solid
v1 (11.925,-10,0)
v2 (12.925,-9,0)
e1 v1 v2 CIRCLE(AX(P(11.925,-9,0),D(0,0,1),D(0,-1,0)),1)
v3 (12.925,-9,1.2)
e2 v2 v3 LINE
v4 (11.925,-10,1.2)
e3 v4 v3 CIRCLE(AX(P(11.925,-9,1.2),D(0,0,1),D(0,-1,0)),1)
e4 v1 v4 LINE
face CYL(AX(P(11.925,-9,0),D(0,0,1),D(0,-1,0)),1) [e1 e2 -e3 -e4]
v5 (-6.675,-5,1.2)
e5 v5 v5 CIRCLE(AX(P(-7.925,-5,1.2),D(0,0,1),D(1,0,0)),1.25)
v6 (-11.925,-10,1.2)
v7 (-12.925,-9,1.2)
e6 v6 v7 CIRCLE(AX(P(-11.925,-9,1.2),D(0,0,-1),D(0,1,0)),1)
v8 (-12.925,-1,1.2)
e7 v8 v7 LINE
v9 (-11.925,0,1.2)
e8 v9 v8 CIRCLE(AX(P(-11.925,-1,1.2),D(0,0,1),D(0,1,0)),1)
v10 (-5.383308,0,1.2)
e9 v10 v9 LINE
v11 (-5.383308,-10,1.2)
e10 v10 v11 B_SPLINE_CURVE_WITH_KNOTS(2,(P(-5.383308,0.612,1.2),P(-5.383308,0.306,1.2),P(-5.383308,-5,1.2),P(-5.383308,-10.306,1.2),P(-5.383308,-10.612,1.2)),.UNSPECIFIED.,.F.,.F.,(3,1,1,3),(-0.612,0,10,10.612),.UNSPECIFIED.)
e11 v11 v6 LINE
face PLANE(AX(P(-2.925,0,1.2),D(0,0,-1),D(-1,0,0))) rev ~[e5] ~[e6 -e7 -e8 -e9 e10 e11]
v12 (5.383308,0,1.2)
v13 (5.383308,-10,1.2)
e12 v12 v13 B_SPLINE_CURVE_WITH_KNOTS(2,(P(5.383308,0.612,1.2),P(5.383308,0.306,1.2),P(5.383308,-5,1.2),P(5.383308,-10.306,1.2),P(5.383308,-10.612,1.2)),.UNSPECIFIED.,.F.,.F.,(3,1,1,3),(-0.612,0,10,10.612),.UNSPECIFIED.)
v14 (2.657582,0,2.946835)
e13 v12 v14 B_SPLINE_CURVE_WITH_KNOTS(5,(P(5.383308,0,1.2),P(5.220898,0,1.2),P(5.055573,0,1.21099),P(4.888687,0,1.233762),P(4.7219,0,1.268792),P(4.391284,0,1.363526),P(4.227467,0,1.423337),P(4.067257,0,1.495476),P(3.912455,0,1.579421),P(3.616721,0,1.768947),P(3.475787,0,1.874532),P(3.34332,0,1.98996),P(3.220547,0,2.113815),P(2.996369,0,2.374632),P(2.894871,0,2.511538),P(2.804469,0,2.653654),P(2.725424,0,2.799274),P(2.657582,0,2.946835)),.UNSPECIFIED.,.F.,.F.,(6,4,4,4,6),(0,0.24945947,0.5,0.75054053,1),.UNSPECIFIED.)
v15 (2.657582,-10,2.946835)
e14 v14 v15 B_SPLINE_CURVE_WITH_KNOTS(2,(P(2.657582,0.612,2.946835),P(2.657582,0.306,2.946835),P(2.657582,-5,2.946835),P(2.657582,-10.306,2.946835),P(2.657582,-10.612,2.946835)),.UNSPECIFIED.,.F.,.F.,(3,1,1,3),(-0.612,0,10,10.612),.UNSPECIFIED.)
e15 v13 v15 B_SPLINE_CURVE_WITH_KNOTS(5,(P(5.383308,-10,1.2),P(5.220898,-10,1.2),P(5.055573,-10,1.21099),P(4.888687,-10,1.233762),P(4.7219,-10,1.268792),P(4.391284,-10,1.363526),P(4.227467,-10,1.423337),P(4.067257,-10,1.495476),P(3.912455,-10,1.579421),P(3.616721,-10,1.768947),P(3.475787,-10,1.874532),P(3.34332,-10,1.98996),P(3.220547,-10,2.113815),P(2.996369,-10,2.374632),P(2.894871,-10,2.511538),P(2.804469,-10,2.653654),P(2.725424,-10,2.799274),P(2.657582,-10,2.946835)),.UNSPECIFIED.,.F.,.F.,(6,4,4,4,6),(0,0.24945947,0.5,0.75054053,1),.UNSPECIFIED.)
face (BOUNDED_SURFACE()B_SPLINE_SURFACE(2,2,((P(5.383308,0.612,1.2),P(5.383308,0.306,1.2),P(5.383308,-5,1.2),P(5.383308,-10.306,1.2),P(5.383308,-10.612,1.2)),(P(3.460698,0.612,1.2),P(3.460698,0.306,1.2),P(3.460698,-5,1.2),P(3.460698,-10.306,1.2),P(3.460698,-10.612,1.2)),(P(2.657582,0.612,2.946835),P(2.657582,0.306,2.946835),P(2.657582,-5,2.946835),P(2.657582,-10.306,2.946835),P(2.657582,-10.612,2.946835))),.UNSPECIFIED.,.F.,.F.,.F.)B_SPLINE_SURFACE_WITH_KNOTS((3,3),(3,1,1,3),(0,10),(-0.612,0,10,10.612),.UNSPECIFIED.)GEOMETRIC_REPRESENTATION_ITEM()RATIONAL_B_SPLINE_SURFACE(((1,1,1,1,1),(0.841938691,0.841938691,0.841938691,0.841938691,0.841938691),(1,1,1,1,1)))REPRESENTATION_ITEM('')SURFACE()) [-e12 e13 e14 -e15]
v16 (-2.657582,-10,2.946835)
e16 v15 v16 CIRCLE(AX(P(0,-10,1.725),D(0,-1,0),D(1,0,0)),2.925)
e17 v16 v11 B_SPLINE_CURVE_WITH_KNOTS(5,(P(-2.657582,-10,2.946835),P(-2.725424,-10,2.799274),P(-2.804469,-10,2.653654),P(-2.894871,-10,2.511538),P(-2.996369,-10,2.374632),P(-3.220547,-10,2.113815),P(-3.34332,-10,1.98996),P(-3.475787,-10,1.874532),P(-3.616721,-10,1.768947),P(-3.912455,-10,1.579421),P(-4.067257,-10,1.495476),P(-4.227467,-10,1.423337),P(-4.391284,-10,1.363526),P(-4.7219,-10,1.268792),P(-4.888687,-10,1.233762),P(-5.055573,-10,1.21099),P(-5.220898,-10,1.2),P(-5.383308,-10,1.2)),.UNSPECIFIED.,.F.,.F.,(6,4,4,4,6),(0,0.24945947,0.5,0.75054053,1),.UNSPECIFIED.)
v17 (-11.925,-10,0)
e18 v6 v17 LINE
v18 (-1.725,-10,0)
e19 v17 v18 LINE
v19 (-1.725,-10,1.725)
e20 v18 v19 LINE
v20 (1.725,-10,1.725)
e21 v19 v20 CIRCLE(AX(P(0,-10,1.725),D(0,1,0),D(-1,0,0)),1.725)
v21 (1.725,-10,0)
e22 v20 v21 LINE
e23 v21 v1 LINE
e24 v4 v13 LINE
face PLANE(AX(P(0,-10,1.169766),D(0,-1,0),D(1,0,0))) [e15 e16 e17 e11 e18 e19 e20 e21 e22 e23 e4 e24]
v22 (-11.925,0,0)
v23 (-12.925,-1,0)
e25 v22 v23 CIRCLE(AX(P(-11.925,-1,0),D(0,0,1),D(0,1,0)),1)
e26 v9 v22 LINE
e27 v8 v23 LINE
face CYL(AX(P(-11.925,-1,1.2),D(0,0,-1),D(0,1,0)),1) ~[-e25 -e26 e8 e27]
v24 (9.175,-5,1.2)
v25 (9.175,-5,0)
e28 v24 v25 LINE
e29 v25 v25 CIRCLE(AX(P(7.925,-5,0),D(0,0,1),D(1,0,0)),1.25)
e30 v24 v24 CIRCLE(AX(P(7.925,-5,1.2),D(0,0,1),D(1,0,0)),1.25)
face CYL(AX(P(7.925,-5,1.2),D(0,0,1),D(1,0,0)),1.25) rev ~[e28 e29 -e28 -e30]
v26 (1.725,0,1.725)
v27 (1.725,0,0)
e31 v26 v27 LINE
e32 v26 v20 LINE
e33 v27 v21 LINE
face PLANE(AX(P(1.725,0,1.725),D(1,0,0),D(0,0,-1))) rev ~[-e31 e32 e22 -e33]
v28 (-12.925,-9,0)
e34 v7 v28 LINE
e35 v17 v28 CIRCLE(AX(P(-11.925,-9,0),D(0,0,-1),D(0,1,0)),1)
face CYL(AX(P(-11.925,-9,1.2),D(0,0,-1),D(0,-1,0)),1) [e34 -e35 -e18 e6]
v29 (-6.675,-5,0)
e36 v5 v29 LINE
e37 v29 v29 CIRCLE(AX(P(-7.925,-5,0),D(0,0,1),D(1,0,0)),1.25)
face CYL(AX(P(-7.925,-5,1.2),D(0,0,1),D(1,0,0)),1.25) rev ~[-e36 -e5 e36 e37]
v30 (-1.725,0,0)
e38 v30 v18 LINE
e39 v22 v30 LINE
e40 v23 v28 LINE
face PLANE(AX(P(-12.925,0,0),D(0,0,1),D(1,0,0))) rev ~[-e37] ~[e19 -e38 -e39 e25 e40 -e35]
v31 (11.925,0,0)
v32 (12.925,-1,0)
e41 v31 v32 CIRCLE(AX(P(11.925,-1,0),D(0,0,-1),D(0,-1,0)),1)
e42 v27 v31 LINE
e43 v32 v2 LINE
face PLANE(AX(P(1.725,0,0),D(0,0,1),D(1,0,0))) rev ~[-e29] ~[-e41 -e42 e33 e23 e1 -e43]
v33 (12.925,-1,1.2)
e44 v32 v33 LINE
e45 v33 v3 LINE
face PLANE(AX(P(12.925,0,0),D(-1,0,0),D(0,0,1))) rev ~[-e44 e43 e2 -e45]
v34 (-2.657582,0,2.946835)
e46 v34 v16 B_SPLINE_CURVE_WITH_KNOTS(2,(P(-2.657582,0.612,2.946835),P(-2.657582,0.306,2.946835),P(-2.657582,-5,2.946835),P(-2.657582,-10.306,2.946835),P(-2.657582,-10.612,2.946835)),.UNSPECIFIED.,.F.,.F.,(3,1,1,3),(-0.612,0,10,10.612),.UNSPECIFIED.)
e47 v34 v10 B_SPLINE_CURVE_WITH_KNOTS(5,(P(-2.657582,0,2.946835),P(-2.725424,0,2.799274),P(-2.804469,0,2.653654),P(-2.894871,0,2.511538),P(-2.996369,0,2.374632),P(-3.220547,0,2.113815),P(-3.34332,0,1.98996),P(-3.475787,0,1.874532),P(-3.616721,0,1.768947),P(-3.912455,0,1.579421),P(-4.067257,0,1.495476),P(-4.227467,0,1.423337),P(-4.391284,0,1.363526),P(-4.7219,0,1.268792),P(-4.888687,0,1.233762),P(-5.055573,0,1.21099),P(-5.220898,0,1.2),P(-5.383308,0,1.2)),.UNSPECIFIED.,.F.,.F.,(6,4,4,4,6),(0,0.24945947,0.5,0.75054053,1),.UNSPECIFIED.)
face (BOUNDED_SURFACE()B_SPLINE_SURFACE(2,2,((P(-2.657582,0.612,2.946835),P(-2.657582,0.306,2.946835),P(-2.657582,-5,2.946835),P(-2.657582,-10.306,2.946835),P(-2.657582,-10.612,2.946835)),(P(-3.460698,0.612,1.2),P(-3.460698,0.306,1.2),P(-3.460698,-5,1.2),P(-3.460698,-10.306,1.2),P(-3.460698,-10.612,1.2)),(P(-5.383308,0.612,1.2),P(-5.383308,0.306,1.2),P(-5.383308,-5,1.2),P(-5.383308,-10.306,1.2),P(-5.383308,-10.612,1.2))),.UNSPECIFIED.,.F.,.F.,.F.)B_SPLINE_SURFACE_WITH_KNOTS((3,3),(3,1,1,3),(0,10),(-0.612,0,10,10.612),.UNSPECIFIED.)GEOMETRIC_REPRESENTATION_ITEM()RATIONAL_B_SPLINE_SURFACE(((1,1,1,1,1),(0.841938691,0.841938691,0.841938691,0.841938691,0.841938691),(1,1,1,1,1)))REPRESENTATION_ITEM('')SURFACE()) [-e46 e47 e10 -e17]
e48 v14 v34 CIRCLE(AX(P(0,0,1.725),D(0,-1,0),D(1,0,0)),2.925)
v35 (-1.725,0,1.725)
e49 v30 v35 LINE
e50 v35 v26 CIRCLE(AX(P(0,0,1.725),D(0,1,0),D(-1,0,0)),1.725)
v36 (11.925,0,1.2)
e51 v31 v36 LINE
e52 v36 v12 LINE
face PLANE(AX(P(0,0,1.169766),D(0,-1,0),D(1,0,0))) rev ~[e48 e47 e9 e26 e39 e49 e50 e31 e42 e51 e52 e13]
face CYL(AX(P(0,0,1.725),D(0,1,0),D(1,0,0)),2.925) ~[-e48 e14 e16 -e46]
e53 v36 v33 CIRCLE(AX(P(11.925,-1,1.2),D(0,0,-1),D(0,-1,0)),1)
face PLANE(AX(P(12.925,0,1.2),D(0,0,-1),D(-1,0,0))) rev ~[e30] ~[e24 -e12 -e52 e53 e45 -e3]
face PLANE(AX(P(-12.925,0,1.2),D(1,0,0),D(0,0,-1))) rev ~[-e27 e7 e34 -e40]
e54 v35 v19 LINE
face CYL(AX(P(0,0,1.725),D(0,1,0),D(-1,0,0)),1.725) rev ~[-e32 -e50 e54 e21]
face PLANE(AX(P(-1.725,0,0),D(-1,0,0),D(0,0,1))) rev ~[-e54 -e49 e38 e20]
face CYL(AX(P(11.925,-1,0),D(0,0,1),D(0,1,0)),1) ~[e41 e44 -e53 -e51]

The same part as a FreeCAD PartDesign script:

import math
import FreeCAD as App
import Part
import Sketcher

V = App.Vector


def edges_at(feature, points):
    """Names of the edges that pass closest to the given points."""
    edges = feature.Shape.Edges
    near = lambda p: min(range(len(edges)), key=lambda i: edges[i].distToShape(Part.Vertex(*p))[0])
    return sorted({f"Edge{near(p) + 1}" for p in points})

doc = App.newDocument("Part")
body = doc.addObject("PartDesign::Body", "Body")

sketch1 = doc.addObject("Sketcher::SketchObject", "Sketch")
body.addObject(sketch1)
sketch1.AttachmentSupport = (doc.XZ_Plane, [""])
sketch1.MapMode = "FlatFace"
sketch1.addGeometry([
    Part.ArcOfCircle(Part.Circle(V(0, 1.725, 0), V(0, 0, 1), 1.725), math.radians(0), math.radians(180)),
    Part.LineSegment(V(1.725, 1.725, 0), V(1.725, 0, 0)),
    Part.LineSegment(V(1.725, 0, 0), V(12.925, 0, 0)),
    Part.LineSegment(V(12.925, 0, 0), V(12.925, 1.2, 0)),
    Part.LineSegment(V(12.925, 1.2, 0), V(2.925, 1.2, 0)),
    Part.LineSegment(V(2.925, 1.2, 0), V(2.925, 1.725, 0)),
    Part.ArcOfCircle(Part.Circle(V(0, 1.725, 0), V(0, 0, 1), 2.925), math.radians(0), math.radians(180)),
    Part.LineSegment(V(-2.925, 1.725, 0), V(-2.925, 1.2, 0)),
    Part.LineSegment(V(-2.925, 1.2, 0), V(-12.925, 1.2, 0)),
    Part.LineSegment(V(-12.925, 1.2, 0), V(-12.925, 0, 0)),
    Part.LineSegment(V(-12.925, 0, 0), V(-1.725, 0, 0)),
    Part.LineSegment(V(-1.725, 0, 0), V(-1.725, 1.725, 0)),
], False)
sketch1.addConstraint([
    Sketcher.Constraint("Tangent", 0, 1, 1, 1),
    Sketcher.Constraint("Coincident", 1, 2, 2, 1),
    Sketcher.Constraint("Coincident", 2, 2, 3, 1),
    Sketcher.Constraint("Coincident", 3, 2, 4, 1),
    Sketcher.Constraint("Coincident", 4, 2, 5, 1),
    Sketcher.Constraint("Tangent", 5, 2, 6, 1),
    Sketcher.Constraint("Tangent", 6, 2, 7, 1),
    Sketcher.Constraint("Coincident", 7, 2, 8, 1),
    Sketcher.Constraint("Coincident", 8, 2, 9, 1),
    Sketcher.Constraint("Coincident", 9, 2, 10, 1),
    Sketcher.Constraint("Coincident", 10, 2, 11, 1),
    Sketcher.Constraint("Tangent", 11, 2, 0, 2),
    Sketcher.Constraint("Vertical", 1),
    Sketcher.Constraint("Horizontal", 2),
    Sketcher.Constraint("Vertical", 3),
    Sketcher.Constraint("Horizontal", 4),
    Sketcher.Constraint("Vertical", 5),
    Sketcher.Constraint("Vertical", 7),
    Sketcher.Constraint("Horizontal", 8),
    Sketcher.Constraint("Vertical", 9),
    Sketcher.Constraint("Horizontal", 10),
    Sketcher.Constraint("Vertical", 11),
    Sketcher.Constraint("Coincident", 6, 3, 0, 3),
    Sketcher.Constraint("Symmetric", 2, 2, 9, 2, -1, 1),
    Sketcher.Constraint("Symmetric", 4, 2, 7, 2, -2),
    Sketcher.Constraint("PointOnObject", 1, 2, -1),
    Sketcher.Constraint("DistanceX", 4, 2, 4, 1, 10.0),
    Sketcher.Constraint("DistanceX", 2, 1, 2, 2, 11.2),
    Sketcher.Constraint("DistanceY", 3, 1, 3, 2, 1.2),
    Sketcher.Constraint("Radius", 0, 1.725),
    Sketcher.Constraint("DistanceY", 1, 2, 1, 1, 1.725),
])
pad1 = doc.addObject("PartDesign::Pad", "Pad")
body.addObject(pad1)
pad1.Profile = sketch1
pad1.Length = 10

sketch2 = doc.addObject("Sketcher::SketchObject", "Sketch001")
body.addObject(sketch2)
sketch2.AttachmentSupport = (doc.XY_Plane, [""])
sketch2.MapMode = "FlatFace"
sketch2.AttachmentOffset = App.Placement(V(0, 0, 1.2), App.Rotation())
sketch2.addGeometry([
    Part.Circle(V(7.925, -5, 0), V(0, 0, 1), 1.25),
    Part.Circle(V(-7.925, -5, 0), V(0, 0, 1), 1.25),
], False)
sketch2.addConstraint([
    Sketcher.Constraint("Equal", 0, 1),
    Sketcher.Constraint("Symmetric", 0, 3, 1, 3, -2),
    Sketcher.Constraint("Diameter", 0, 2.5),
    Sketcher.Constraint("DistanceY", 0, 3, -1, 1, 5.0),
    Sketcher.Constraint("DistanceX", 1, 3, 0, 3, 15.85),
])
pocket1 = doc.addObject("PartDesign::Pocket", "Pocket")
body.addObject(pocket1)
pocket1.Profile = sketch2
pocket1.Type = "ThroughAll"
doc.recompute()

fillet = doc.addObject("PartDesign::Fillet", "Fillet")
body.addObject(fillet)
fillet.Base = (pocket1, edges_at(pocket1, [
    (12.925, -10, 0.6),
    (-12.925, -10, 0.6),
    (12.925, 0, 0.6),
    (-12.925, 0, 0.6),
]))
fillet.Radius = 1
doc.recompute()

fillet2 = doc.addObject("PartDesign::Fillet", "Fillet001")
body.addObject(fillet2)
fillet2.Base = (fillet, edges_at(fillet, [(2.925, -5, 1.2), (-2.925, -5, 1.2)]))
fillet2.Radius = 3

doc.recompute()
